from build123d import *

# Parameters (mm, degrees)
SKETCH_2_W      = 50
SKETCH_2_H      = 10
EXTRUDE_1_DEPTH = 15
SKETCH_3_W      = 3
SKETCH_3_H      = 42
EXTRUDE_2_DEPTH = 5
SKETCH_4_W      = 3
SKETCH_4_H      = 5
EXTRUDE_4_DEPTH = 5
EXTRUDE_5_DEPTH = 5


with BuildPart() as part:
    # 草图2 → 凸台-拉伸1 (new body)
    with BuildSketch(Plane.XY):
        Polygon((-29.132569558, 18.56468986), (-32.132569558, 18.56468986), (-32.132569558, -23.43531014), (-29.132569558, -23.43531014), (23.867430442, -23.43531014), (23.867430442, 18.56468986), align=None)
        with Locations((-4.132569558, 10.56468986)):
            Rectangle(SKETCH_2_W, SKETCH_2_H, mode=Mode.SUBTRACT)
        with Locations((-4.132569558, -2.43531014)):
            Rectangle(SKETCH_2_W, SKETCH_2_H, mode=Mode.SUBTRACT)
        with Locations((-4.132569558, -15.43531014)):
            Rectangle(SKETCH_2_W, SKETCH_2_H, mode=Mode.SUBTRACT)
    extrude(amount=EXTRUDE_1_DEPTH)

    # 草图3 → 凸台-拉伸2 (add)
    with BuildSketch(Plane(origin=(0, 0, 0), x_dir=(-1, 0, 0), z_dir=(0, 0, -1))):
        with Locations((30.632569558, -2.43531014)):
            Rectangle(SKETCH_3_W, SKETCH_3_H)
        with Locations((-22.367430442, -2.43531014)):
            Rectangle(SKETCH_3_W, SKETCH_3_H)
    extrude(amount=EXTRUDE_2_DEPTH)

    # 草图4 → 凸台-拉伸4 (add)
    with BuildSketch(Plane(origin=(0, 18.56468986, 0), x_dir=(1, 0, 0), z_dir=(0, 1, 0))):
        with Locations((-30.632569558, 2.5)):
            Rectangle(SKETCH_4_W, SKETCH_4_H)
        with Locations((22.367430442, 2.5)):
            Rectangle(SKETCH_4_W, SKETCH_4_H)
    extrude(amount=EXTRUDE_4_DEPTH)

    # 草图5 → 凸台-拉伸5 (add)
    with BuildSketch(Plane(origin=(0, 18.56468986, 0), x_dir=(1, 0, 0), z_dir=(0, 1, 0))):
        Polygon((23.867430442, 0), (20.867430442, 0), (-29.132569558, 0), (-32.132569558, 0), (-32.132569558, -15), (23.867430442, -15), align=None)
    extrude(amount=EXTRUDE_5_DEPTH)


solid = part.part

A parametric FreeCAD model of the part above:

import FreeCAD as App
import Part
import Sketcher
from FreeCAD import Vector


def add_polygon(sketch, points):
    """Adds a closed chain of lines whose ends are joined by coincident constraints."""
    first, n = sketch.GeometryCount, len(points)
    for a, b in zip(points, points[1:] + points[:1]):
        sketch.addGeometry(Part.LineSegment(App.Vector(*a, 0), App.Vector(*b, 0)), False)
    for i in range(n):
        sketch.addConstraint(Sketcher.Constraint("Coincident", first + i, 2, first + (i + 1) % n, 1))

doc = App.newDocument("Part")
params = doc.addObject("Spreadsheet::Sheet", "Params")
for row, (alias, value) in enumerate([
    ("sketch1_width", "56 mm"),
    ("sketch1_width2", "50 mm"),
    ("sketch1_height", "42 mm"),
    ("sketch1_height2", "10 mm"),
    ("pad1_length", "15 mm"),
    ("sketch2_width", "3 mm"),
    ("sketch2_height", "42 mm"),
    ("pad2_length", "5 mm"),
    ("sketch3_width", "3 mm"),
    ("sketch3_height", "5 mm"),
    ("pad3_length", "5 mm"),
    ("sketch4_width", "56 mm"),
    ("sketch4_height", "15 mm"),
    ("pad4_length", "5 mm"),
], start=1):
    params.set(f"A{row}", alias)
    params.set(f"B{row}", "=" + value)
    params.setAlias(f"B{row}", alias)

body = doc.addObject("PartDesign::Body", "Body")

# Sketch on XY plane
sketch1 = body.newObject("Sketcher::SketchObject", "Sketch")
sketch1.AttachmentSupport = (doc.getObject("XY_Plane"), [""])
sketch1.MapMode = "FlatFace"
add_polygon(sketch1, [(-32.13257, 18.56469), (-32.13257, -23.43531), (23.86743, -23.43531), (23.86743, 18.56469)])  # lines 0-3
add_polygon(sketch1, [(20.86743, -20.43531), (-29.13257, -20.43531), (-29.13257, -10.43531), (20.86743, -10.43531)])  # lines 4-7
add_polygon(sketch1, [(20.86743, -7.43531), (-29.13257, -7.43531), (-29.13257, 2.56469), (20.86743, 2.56469)])  # lines 8-11
add_polygon(sketch1, [(20.86743, 5.56469), (-29.13257, 5.56469), (-29.13257, 15.56469), (20.86743, 15.56469)])  # lines 12-15
sketch1.addConstraint([
    Sketcher.Constraint("Vertical", 0),
    Sketcher.Constraint("Horizontal", 1),
    Sketcher.Constraint("Vertical", 2),
    Sketcher.Constraint("Horizontal", 3),
    Sketcher.Constraint("Horizontal", 4),
    Sketcher.Constraint("Vertical", 5),
    Sketcher.Constraint("Horizontal", 6),
    Sketcher.Constraint("Vertical", 7),
    Sketcher.Constraint("Horizontal", 8),
    Sketcher.Constraint("Vertical", 9),
    Sketcher.Constraint("Horizontal", 10),
    Sketcher.Constraint("Vertical", 11),
    Sketcher.Constraint("Horizontal", 12),
    Sketcher.Constraint("Vertical", 13),
    Sketcher.Constraint("Horizontal", 14),
    Sketcher.Constraint("Vertical", 15),
    Sketcher.Constraint("Vertical", 5, 2, 8, 2),
    Sketcher.Constraint("Vertical", 7, 2, 10, 2),
    Sketcher.Constraint("Vertical", 9, 2, 12, 2),
    Sketcher.Constraint("Vertical", 11, 2, 14, 2),
    Sketcher.Constraint("Equal", 7, 9),
    Sketcher.Constraint("Equal", 11, 13),
    Sketcher.Constraint("DistanceX", 1, 1, 1, 2, 56.0),
    Sketcher.Constraint("DistanceX", 4, 2, 4, 1, 50.0),
    Sketcher.Constraint("DistanceY", 0, 2, 0, 1, 42.0),
    Sketcher.Constraint("DistanceY", 5, 1, 5, 2, 10.0),
    Sketcher.Constraint("DistanceX", 0, 2, 4, 2, 3.0),
    Sketcher.Constraint("DistanceY", 0, 2, 4, 2, 3.0),
    Sketcher.Constraint("DistanceY", 5, 2, 8, 2, 3.0),
    Sketcher.Constraint("DistanceY", 9, 2, 12, 2, 3.0),
    Sketcher.Constraint("DistanceX", 0, 2, -1, 1, 32.13257),
    Sketcher.Constraint("DistanceY", 0, 2, -1, 1, 23.43531),
])
sketch1.setExpression("Constraints[38]", "Params.sketch1_width")
sketch1.setExpression("Constraints[39]", "Params.sketch1_width2")
sketch1.setExpression("Constraints[40]", "Params.sketch1_height")
sketch1.setExpression("Constraints[41]", "Params.sketch1_height2")
pad1 = body.newObject("PartDesign::Pad", "Pad")
pad1.Profile = sketch1
pad1.setExpression("Length", "Params.pad1_length")

# Sketch on XY plane
sketch2 = body.newObject("Sketcher::SketchObject", "Sketch001")
sketch2.AttachmentSupport = (doc.getObject("XY_Plane"), [""])
sketch2.MapMode = "FlatFace"
add_polygon(sketch2, [(-29.13257, 18.56469), (-29.13257, -23.43531), (-32.13257, -23.43531), (-32.13257, 18.56469)])  # lines 0-3
add_polygon(sketch2, [(23.86743, 18.56469), (23.86743, -23.43531), (20.86743, -23.43531), (20.86743, 18.56469)])  # lines 4-7
sketch2.addConstraint([
    Sketcher.Constraint("Vertical", 0),
    Sketcher.Constraint("Horizontal", 1),
    Sketcher.Constraint("Vertical", 2),
    Sketcher.Constraint("Horizontal", 3),
    Sketcher.Constraint("Vertical", 4),
    Sketcher.Constraint("Horizontal", 5),
    Sketcher.Constraint("Vertical", 6),
    Sketcher.Constraint("Horizontal", 7),
    Sketcher.Constraint("Horizontal", 1, 2, 4, 2),
    Sketcher.Constraint("Horizontal", 3, 2, 6, 2),
    Sketcher.Constraint("Equal", 3, 5),
    Sketcher.Constraint("DistanceX", 1, 2, 1, 1, 3.0),
    Sketcher.Constraint("DistanceY", 0, 2, 0, 1, 42.0),
    Sketcher.Constraint("DistanceX", 0, 2, 4, 2, 53.0),
    Sketcher.Constraint("DistanceX", 0, 2, -1, 1, 29.13257),
    Sketcher.Constraint("DistanceY", 0, 2, -1, 1, 23.43531),
])
sketch2.setExpression("Constraints[19]", "Params.sketch2_width")
sketch2.setExpression("Constraints[20]", "Params.sketch2_height")
pad2 = body.newObject("PartDesign::Pad", "Pad001")
pad2.Profile = sketch2
pad2.setExpression("Length", "Params.pad2_length")
pad2.Reversed = True

# Sketch on XZ plane
sketch3 = body.newObject("Sketcher::SketchObject", "Sketch002")
sketch3.AttachmentSupport = (doc.getObject("XZ_Plane"), [""])
sketch3.MapMode = "FlatFace"
sketch3.AttachmentOffset = App.Placement(Vector(0, 0, -18.56469), App.Rotation())
add_polygon(sketch3, [(-32.13257, -5), (-32.13257, 0), (-29.13257, 0), (-29.13257, -5)])  # lines 0-3
add_polygon(sketch3, [(20.86743, -5), (20.86743, 0), (23.86743, 0), (23.86743, -5)])  # lines 4-7
sketch3.addConstraint([
    Sketcher.Constraint("Vertical", 0),
    Sketcher.Constraint("Horizontal", 1),
    Sketcher.Constraint("Vertical", 2),
    Sketcher.Constraint("Horizontal", 3),
    Sketcher.Constraint("Vertical", 4),
    Sketcher.Constraint("Horizontal", 5),
    Sketcher.Constraint("Vertical", 6),
    Sketcher.Constraint("Horizontal", 7),
    Sketcher.Constraint("PointOnObject", 0, 2, -1),
    Sketcher.Constraint("PointOnObject", 4, 2, -1),
    Sketcher.Constraint("Horizontal", 3, 2, 6, 2),
    Sketcher.Constraint("Equal", 3, 5),
    Sketcher.Constraint("DistanceX", 1, 1, 1, 2, 3.0),
    Sketcher.Constraint("DistanceY", 0, 1, 0, 2, 5.0),
    Sketcher.Constraint("DistanceX", 1, 2, 4, 2, 50.0),
    Sketcher.Constraint("DistanceX", 0, 2, -1, 1, 32.13257),
])
sketch3.setExpression("Constraints[20]", "Params.sketch3_width")
sketch3.setExpression("Constraints[21]", "Params.sketch3_height")
pad3 = body.newObject("PartDesign::Pad", "Pad002")
pad3.Profile = sketch3
pad3.setExpression("Length", "Params.pad3_length")
pad3.Reversed = True

# Sketch on XZ plane
sketch4 = body.newObject("Sketcher::SketchObject", "Sketch003")
sketch4.AttachmentSupport = (doc.getObject("XZ_Plane"), [""])
sketch4.MapMode = "FlatFace"
sketch4.AttachmentOffset = App.Placement(Vector(0, 0, -18.56469), App.Rotation())
add_polygon(sketch4, [(23.86743, 0), (-32.13257, 0), (-32.13257, 15), (23.86743, 15)])  # lines 0-3
sketch4.addConstraint([
    Sketcher.Constraint("Horizontal", 0),
    Sketcher.Constraint("Vertical", 1),
    Sketcher.Constraint("Horizontal", 2),
    Sketcher.Constraint("Vertical", 3),
    Sketcher.Constraint("PointOnObject", 0, 2, -1),
    Sketcher.Constraint("DistanceX", 0, 2, 0, 1, 56.0),
    Sketcher.Constraint("DistanceY", 1, 1, 1, 2, 15.0),
    Sketcher.Constraint("DistanceX", 0, 2, -1, 1, 32.13257),
])
sketch4.setExpression("Constraints[9]", "Params.sketch4_width")
sketch4.setExpression("Constraints[10]", "Params.sketch4_height")
pad4 = body.newObject("PartDesign::Pad", "Pad003")
pad4.Profile = sketch4
pad4.setExpression("Length", "Params.pad4_length")
pad4.Reversed = True

doc.recompute()
